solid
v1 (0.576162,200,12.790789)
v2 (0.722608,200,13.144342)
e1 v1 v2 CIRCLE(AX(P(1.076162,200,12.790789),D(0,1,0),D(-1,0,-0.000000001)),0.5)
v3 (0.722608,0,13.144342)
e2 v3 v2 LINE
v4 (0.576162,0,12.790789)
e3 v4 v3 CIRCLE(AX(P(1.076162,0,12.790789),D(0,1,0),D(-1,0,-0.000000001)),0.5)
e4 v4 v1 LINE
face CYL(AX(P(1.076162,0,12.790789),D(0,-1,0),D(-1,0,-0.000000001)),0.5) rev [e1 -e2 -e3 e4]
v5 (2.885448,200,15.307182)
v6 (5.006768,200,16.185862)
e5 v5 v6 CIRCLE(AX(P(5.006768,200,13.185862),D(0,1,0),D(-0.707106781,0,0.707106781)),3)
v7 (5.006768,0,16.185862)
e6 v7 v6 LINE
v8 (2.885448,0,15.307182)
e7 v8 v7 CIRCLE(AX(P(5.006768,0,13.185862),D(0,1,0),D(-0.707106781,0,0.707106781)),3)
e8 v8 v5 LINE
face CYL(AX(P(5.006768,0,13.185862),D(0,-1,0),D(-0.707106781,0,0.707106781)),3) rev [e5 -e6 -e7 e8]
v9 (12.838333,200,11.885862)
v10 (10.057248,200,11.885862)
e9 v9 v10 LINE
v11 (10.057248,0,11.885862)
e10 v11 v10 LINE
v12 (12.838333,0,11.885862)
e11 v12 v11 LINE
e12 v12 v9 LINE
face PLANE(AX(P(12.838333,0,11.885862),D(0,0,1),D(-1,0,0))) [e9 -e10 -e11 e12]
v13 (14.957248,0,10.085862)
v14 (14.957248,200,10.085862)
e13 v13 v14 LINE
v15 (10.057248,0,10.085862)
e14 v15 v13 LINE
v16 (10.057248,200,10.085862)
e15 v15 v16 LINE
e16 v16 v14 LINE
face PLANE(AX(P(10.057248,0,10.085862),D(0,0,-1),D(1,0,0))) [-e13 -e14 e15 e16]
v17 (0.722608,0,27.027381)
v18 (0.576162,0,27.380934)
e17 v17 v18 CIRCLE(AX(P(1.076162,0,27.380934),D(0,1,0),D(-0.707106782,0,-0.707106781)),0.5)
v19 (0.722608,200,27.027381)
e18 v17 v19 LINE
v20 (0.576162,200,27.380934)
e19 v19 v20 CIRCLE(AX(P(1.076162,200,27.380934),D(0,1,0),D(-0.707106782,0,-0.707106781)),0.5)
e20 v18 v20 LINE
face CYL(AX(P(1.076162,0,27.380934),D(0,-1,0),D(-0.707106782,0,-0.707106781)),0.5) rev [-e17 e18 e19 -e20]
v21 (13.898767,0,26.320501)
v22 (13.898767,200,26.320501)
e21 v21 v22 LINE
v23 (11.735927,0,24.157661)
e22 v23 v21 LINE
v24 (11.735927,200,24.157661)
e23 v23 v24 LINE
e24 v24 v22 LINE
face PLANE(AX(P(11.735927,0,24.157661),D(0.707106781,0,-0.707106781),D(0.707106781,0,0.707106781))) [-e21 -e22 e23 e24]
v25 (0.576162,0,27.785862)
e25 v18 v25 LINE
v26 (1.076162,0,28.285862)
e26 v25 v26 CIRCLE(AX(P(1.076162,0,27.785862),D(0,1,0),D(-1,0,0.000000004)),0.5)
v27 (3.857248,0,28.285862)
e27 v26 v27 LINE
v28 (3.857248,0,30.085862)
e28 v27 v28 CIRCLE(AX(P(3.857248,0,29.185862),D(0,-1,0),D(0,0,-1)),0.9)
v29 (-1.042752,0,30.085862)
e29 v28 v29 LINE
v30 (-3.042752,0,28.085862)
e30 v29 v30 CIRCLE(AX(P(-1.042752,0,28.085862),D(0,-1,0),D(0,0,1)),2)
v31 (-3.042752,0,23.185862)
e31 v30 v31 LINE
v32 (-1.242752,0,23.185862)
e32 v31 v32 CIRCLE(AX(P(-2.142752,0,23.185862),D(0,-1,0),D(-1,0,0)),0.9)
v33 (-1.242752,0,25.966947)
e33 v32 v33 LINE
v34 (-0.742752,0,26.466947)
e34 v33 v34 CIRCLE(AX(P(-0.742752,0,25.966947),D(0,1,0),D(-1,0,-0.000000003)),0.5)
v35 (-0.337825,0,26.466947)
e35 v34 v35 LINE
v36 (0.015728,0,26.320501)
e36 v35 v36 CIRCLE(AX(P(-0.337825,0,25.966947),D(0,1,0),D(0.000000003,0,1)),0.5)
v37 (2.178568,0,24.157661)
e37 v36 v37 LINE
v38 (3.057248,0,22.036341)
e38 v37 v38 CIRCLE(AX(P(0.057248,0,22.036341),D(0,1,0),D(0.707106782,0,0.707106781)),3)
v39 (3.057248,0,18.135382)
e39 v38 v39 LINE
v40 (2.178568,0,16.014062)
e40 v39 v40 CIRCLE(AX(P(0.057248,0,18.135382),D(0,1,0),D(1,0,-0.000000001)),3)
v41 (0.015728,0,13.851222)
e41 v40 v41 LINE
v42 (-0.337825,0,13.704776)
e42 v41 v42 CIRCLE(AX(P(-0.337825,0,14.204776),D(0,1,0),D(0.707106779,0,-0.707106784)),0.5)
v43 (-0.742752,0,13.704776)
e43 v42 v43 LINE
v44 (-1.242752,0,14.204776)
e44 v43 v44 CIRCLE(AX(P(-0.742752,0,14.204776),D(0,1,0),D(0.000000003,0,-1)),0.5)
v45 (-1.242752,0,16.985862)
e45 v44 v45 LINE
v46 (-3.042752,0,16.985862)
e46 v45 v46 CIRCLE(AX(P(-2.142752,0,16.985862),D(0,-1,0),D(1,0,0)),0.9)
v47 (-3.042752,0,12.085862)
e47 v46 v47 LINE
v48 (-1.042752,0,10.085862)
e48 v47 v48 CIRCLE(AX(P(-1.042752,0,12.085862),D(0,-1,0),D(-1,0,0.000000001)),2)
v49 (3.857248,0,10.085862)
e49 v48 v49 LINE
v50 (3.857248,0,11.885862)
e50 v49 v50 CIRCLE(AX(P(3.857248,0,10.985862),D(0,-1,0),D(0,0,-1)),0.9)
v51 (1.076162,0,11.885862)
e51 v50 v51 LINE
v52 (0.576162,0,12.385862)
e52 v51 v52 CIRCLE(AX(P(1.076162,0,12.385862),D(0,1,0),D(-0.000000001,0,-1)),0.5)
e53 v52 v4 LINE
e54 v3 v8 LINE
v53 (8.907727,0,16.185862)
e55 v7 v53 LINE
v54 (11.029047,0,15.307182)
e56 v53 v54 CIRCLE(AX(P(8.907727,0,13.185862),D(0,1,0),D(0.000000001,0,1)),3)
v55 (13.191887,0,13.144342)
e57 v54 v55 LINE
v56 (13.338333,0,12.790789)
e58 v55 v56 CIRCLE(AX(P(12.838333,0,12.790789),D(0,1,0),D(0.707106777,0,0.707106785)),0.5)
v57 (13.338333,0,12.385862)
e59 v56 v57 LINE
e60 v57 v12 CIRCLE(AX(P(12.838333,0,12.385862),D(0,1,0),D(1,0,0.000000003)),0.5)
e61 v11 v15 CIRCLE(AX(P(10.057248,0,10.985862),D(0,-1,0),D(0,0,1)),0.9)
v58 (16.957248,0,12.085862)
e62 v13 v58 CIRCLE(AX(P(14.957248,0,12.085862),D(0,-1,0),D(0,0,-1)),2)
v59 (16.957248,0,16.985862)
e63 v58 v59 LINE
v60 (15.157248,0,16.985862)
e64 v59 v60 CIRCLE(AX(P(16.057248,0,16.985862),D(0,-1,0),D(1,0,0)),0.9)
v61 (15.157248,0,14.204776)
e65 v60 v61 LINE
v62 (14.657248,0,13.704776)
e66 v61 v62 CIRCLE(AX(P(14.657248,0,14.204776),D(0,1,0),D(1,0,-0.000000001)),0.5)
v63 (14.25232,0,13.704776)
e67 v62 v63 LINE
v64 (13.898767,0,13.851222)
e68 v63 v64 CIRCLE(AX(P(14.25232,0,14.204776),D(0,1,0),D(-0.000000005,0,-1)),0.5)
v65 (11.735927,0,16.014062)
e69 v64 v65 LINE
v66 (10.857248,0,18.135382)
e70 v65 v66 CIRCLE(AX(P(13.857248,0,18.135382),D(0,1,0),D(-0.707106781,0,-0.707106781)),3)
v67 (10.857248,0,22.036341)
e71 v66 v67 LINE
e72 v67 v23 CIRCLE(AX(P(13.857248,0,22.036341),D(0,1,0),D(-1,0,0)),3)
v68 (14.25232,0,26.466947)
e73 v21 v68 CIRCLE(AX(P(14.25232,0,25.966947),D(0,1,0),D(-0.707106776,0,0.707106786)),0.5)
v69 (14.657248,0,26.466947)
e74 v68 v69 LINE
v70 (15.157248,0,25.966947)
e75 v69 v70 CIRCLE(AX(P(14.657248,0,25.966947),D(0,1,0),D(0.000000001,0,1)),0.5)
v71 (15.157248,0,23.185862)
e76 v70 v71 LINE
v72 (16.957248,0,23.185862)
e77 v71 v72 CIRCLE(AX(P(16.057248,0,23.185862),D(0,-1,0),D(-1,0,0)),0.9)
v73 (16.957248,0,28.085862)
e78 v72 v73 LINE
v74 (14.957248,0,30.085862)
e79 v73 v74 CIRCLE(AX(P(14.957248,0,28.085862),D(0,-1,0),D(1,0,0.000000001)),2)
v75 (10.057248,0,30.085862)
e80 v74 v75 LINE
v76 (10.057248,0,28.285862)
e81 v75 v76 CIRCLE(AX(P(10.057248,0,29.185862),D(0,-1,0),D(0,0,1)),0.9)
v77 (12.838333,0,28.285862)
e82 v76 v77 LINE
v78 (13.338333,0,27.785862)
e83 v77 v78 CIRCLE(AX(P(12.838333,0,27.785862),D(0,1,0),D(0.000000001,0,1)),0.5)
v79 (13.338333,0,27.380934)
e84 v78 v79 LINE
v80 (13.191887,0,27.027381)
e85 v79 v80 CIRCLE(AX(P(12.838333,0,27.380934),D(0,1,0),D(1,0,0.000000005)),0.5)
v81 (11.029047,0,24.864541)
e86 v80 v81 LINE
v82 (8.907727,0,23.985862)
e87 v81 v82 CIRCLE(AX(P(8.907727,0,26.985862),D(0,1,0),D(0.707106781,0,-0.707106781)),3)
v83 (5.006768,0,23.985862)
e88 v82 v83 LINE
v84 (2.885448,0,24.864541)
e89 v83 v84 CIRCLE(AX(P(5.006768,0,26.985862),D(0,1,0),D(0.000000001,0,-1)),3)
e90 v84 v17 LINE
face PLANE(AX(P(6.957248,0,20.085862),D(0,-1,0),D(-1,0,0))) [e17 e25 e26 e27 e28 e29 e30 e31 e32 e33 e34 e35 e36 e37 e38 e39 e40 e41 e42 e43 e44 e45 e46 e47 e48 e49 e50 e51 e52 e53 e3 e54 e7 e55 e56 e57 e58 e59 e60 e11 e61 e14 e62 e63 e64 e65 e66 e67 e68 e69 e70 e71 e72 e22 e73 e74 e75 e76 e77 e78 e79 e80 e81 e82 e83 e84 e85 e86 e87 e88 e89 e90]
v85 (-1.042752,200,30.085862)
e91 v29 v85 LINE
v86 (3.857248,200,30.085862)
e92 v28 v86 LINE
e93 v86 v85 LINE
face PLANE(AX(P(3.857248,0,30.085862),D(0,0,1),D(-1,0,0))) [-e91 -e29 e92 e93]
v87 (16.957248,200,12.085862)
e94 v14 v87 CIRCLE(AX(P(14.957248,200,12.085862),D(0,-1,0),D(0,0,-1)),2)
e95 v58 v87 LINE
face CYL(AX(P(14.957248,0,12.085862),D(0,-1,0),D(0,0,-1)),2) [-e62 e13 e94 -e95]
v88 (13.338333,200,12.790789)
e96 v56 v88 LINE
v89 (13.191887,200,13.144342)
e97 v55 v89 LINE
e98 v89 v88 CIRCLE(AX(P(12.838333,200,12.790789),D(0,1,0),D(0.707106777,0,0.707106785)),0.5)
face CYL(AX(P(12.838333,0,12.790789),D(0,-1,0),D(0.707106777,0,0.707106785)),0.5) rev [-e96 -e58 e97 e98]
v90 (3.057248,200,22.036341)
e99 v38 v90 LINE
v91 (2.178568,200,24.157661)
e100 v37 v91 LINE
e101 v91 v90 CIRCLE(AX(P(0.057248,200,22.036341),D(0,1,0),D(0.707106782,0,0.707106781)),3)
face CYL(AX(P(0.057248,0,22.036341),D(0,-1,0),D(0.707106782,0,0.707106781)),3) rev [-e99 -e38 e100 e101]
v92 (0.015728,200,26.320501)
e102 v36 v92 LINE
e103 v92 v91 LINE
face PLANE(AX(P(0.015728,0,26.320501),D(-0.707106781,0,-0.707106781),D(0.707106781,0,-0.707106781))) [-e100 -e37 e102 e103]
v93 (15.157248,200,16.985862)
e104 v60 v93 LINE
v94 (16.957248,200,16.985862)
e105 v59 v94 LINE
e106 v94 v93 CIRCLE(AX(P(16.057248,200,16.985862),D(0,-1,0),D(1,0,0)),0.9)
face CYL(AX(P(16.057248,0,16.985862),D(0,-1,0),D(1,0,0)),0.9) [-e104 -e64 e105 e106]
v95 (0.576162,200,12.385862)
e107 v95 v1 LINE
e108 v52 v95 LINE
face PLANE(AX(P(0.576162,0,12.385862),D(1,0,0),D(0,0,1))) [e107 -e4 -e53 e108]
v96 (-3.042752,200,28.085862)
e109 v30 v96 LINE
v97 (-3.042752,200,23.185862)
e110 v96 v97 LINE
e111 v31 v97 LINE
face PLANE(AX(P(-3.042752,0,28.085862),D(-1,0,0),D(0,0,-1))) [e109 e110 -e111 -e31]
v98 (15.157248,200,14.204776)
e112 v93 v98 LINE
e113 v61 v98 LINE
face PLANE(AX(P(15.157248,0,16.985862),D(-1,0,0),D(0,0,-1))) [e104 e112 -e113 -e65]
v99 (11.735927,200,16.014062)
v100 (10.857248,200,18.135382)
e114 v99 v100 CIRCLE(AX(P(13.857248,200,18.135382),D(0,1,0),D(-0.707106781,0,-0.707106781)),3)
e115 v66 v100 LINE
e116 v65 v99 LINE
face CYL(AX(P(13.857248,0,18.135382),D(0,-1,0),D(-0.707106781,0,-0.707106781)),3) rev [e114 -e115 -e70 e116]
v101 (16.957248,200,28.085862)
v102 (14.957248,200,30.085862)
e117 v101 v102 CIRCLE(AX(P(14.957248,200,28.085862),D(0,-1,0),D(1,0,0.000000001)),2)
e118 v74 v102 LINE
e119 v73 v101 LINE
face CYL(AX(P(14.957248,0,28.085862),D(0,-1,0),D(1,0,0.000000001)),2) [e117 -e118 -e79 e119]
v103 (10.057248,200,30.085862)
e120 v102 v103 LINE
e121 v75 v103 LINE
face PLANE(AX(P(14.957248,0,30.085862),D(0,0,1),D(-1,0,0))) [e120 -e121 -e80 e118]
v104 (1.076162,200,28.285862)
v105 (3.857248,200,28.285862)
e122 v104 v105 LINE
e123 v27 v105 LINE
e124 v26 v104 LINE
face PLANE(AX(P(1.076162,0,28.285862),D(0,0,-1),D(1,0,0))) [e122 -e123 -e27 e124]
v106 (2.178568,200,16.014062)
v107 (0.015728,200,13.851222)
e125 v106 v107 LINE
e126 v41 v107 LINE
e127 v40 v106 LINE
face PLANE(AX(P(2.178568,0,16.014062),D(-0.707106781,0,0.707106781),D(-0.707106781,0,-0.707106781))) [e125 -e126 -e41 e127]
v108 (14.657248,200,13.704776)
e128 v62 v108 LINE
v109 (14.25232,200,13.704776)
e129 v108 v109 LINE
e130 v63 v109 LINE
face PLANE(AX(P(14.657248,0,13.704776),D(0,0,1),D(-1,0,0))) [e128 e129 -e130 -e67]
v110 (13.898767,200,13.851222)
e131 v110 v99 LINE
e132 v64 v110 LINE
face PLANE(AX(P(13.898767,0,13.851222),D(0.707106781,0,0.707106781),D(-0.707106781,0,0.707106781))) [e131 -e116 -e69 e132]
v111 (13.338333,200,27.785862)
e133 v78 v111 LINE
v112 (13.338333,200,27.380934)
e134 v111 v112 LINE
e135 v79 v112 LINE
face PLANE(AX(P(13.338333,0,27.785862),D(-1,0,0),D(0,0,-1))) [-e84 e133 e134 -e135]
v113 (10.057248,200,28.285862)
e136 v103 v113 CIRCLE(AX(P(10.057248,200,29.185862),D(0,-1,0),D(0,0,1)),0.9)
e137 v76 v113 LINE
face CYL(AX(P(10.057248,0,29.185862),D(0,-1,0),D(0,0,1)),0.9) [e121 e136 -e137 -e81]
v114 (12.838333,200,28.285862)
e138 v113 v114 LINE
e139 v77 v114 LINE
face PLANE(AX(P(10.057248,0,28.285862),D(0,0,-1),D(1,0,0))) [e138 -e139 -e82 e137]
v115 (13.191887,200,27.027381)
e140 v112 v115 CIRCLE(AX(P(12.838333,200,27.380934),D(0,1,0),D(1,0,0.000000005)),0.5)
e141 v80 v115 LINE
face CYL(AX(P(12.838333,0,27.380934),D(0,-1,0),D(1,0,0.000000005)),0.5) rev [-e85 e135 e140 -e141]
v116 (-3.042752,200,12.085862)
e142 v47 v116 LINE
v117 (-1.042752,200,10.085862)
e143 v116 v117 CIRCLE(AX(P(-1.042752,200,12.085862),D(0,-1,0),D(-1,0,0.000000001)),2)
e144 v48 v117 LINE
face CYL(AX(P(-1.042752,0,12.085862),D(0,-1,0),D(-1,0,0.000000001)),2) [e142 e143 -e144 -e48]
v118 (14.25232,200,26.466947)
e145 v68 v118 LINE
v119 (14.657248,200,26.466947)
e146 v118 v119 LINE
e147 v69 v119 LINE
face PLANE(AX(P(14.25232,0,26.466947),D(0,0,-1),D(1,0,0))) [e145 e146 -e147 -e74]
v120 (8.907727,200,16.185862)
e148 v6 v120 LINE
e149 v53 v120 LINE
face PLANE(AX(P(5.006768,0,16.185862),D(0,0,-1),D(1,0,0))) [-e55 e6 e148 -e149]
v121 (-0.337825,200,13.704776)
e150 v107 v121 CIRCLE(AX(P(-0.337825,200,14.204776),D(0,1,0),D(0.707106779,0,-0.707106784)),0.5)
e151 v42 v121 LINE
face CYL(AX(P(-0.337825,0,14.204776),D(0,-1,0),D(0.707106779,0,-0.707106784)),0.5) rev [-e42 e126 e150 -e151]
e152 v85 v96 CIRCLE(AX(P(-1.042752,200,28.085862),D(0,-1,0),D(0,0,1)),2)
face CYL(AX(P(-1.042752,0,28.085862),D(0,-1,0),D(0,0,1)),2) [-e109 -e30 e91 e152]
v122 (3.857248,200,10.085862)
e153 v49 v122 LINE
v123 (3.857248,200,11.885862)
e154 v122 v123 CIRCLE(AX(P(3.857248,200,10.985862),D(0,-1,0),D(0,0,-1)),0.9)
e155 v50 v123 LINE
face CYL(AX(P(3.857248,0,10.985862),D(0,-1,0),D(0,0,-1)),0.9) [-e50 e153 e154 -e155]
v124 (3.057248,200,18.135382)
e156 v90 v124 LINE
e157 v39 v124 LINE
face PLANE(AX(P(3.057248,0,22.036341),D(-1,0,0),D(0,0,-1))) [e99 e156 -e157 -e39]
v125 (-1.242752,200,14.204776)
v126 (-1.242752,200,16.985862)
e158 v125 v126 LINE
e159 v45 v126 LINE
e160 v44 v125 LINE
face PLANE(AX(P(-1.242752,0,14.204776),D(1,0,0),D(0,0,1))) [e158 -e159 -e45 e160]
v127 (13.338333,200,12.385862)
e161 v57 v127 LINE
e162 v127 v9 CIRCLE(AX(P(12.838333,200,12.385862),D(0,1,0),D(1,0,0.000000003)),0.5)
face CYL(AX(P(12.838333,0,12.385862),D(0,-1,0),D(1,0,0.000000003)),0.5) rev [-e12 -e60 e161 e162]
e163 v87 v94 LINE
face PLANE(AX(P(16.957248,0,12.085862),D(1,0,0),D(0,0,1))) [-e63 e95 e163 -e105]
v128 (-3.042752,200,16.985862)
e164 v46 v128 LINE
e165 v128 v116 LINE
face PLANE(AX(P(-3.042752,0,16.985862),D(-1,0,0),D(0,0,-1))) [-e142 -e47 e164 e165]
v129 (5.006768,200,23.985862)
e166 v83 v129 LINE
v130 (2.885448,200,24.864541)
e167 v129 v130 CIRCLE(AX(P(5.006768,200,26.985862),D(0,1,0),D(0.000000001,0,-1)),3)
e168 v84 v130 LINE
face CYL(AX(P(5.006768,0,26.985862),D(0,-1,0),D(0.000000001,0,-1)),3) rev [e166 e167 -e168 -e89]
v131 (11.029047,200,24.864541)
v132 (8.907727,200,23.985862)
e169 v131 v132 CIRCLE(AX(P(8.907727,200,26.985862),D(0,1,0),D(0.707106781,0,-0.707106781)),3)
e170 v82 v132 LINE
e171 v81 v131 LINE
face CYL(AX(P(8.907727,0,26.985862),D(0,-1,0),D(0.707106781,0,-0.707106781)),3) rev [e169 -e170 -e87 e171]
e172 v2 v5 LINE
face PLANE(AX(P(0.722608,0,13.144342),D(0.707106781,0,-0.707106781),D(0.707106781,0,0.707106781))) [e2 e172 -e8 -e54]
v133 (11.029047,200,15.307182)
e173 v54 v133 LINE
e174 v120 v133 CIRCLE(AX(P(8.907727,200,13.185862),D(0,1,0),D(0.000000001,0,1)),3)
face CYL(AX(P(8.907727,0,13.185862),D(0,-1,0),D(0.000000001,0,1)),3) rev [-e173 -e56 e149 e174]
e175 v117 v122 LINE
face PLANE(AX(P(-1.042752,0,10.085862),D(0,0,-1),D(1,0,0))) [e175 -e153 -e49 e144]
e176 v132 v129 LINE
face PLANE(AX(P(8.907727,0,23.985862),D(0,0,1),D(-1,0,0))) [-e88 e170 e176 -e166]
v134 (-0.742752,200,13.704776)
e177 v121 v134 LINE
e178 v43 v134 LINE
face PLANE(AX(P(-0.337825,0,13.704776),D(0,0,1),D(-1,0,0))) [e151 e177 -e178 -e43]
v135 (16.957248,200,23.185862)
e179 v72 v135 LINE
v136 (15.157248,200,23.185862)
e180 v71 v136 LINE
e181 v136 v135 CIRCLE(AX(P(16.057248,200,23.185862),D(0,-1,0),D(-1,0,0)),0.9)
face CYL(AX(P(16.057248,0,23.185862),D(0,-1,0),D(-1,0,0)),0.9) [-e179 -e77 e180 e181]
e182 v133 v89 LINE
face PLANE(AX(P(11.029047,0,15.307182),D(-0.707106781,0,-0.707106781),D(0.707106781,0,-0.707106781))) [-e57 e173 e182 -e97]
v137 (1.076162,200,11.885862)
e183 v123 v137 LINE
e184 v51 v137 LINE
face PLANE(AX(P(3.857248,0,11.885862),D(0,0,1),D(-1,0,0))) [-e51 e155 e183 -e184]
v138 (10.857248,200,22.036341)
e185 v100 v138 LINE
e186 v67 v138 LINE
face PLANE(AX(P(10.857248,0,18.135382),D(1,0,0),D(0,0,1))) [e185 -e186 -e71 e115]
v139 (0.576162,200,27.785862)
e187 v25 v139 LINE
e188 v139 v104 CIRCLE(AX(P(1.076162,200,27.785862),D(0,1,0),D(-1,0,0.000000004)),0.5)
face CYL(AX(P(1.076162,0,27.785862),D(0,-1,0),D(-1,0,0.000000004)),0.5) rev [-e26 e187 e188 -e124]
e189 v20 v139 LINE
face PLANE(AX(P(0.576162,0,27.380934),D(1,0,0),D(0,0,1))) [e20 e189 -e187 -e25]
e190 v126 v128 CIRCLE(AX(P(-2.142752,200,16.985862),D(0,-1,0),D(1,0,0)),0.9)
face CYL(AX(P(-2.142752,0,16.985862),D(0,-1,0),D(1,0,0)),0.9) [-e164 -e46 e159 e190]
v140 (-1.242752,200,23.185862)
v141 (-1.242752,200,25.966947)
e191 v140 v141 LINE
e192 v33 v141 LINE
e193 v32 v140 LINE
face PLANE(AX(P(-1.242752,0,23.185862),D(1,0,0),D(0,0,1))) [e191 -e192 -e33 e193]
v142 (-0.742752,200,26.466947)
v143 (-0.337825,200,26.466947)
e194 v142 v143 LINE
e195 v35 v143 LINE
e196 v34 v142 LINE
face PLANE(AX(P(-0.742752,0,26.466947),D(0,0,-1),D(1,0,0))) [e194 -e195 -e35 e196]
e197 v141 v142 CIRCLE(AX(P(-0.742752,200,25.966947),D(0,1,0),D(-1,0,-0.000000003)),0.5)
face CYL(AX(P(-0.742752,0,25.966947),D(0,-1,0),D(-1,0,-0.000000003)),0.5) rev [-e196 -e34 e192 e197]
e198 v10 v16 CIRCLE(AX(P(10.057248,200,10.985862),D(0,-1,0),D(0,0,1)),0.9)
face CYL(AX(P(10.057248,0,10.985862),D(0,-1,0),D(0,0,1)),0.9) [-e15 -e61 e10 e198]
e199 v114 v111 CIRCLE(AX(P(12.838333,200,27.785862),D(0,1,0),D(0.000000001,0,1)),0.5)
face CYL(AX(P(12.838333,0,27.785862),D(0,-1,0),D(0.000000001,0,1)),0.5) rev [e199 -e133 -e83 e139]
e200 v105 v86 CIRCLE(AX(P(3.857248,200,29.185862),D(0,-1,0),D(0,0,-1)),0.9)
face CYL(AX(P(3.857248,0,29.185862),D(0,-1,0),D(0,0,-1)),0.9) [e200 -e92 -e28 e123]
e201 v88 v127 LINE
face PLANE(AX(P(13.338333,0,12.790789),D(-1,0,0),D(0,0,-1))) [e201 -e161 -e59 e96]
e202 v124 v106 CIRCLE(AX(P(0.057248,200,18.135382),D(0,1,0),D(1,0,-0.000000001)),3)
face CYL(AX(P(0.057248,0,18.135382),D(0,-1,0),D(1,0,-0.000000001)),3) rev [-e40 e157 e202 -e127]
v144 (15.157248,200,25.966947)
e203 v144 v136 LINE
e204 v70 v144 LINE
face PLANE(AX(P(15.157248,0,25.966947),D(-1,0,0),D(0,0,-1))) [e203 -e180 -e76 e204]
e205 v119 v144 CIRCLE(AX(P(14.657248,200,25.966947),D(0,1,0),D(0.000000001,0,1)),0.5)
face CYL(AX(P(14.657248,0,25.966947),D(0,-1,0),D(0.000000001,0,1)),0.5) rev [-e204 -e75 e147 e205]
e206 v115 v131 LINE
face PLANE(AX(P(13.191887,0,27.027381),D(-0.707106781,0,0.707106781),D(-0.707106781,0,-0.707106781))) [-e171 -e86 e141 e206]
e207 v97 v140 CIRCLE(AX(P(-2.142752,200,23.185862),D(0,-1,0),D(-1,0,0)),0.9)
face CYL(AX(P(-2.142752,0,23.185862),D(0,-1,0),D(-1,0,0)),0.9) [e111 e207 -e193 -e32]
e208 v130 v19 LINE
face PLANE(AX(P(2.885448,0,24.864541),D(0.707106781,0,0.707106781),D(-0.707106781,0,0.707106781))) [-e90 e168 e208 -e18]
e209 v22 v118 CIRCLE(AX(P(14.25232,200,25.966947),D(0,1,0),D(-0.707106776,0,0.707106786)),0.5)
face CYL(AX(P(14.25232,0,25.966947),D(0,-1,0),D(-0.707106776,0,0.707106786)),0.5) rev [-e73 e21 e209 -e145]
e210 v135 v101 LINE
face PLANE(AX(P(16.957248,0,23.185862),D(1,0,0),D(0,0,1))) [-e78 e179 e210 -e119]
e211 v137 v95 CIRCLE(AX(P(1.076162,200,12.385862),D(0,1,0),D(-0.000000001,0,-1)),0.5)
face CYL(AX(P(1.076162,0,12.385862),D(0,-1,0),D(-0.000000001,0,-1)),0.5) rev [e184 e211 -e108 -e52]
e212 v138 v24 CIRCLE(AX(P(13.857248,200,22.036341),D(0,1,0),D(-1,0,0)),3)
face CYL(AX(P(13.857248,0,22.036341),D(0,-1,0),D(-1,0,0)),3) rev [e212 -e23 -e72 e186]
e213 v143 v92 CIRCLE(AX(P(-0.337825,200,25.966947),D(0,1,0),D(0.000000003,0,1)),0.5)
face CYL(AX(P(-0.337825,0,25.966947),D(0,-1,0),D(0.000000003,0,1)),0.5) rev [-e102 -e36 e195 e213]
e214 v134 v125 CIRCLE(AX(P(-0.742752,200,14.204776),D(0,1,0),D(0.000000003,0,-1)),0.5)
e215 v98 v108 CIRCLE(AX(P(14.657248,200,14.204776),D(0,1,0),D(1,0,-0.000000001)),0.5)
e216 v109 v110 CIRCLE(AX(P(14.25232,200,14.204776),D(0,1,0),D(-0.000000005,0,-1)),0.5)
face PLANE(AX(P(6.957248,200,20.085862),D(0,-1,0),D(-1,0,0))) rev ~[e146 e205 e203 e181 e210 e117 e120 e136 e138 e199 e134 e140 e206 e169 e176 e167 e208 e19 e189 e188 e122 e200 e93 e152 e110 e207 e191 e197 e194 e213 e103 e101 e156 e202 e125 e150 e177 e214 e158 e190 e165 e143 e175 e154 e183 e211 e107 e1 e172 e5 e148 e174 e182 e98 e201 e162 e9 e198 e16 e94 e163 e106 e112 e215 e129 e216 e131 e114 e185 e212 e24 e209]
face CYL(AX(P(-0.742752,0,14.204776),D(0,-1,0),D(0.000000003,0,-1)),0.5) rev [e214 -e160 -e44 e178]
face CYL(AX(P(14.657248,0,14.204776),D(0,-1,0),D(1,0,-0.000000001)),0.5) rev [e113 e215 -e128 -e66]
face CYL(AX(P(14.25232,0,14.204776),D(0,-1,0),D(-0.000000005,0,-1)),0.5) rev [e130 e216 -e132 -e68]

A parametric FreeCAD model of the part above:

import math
import FreeCAD as App
import Part
import Sketcher
from FreeCAD import Vector
Q = App.Units.Quantity

doc = App.newDocument("Part")
body = doc.addObject("PartDesign::Body", "Body")

sketch1 = body.newObject("Sketcher::SketchObject", "Sketch")
sketch1.AttachmentSupport = (doc.getObject("XZ_Plane"), [""])
sketch1.MapMode = "FlatFace"
sketch1.addGeometry(Part.LineSegment(Vector(3.857248, 10.085862, 0), Vector(-1.042752, 10.085862, 0)), False)
sketch1.addGeometry(Part.ArcOfCircle(Part.Circle(Vector(-1.042752, 12.085862, 0), Vector(0, 0, 1), 2), math.radians(180), math.radians(270)), False)
sketch1.addGeometry(Part.LineSegment(Vector(-3.042752, 12.085862, 0), Vector(-3.042752, 16.985862, 0)), False)
sketch1.addGeometry(Part.ArcOfCircle(Part.Circle(Vector(-2.142752, 16.985862, 0), Vector(0, 0, 1), 0.9), math.radians(0), math.radians(180)), False)
sketch1.addGeometry(Part.LineSegment(Vector(-1.242752, 16.985862, 0), Vector(-1.242752, 14.204776, 0)), False)
sketch1.addGeometry(Part.ArcOfCircle(Part.Circle(Vector(-0.742752, 14.204776, 0), Vector(0, 0, 1), 0.5), math.radians(180), math.radians(270)), False)
sketch1.addGeometry(Part.LineSegment(Vector(-0.742752, 13.704776, 0), Vector(-0.337825, 13.704776, 0)), False)
sketch1.addGeometry(Part.ArcOfCircle(Part.Circle(Vector(-0.337825, 14.204776, 0), Vector(0, 0, 1), 0.5), math.radians(-90), math.radians(-45)), False)
sketch1.addGeometry(Part.LineSegment(Vector(0.015728, 13.851222, 0), Vector(2.178568, 16.014062, 0)), False)
sketch1.addGeometry(Part.ArcOfCircle(Part.Circle(Vector(0.057248, 18.135382, 0), Vector(0, 0, 1), 3), math.radians(-45), math.radians(0)), False)
sketch1.addGeometry(Part.LineSegment(Vector(3.057248, 18.135382, 0), Vector(3.057248, 22.036341, 0)), False)
sketch1.addGeometry(Part.ArcOfCircle(Part.Circle(Vector(0.057248, 22.036341, 0), Vector(0, 0, 1), 3), math.radians(0), math.radians(45)), False)
sketch1.addGeometry(Part.LineSegment(Vector(2.178568, 24.157661, 0), Vector(0.015728, 26.320501, 0)), False)
sketch1.addGeometry(Part.ArcOfCircle(Part.Circle(Vector(-0.337825, 25.966947, 0), Vector(0, 0, 1), 0.5), math.radians(45), math.radians(90)), False)
sketch1.addGeometry(Part.LineSegment(Vector(-0.337825, 26.466947, 0), Vector(-0.742752, 26.466947, 0)), False)
sketch1.addGeometry(Part.ArcOfCircle(Part.Circle(Vector(-0.742752, 25.966947, 0), Vector(0, 0, 1), 0.5), math.radians(90), math.radians(180)), False)
sketch1.addGeometry(Part.LineSegment(Vector(-1.242752, 25.966947, 0), Vector(-1.242752, 23.185862, 0)), False)
sketch1.addGeometry(Part.ArcOfCircle(Part.Circle(Vector(-2.142752, 23.185862, 0), Vector(0, 0, 1), 0.9), math.radians(180), math.radians(360)), False)
sketch1.addGeometry(Part.LineSegment(Vector(-3.042752, 23.185862, 0), Vector(-3.042752, 28.085862, 0)), False)
sketch1.addGeometry(Part.ArcOfCircle(Part.Circle(Vector(-1.042752, 28.085862, 0), Vector(0, 0, 1), 2), math.radians(90), math.radians(180)), False)
sketch1.addGeometry(Part.LineSegment(Vector(-1.042752, 30.085862, 0), Vector(3.857248, 30.085862, 0)), False)
sketch1.addGeometry(Part.ArcOfCircle(Part.Circle(Vector(3.857248, 29.185862, 0), Vector(0, 0, 1), 0.9), math.radians(-90), math.radians(90)), False)
sketch1.addGeometry(Part.LineSegment(Vector(3.857248, 28.285862, 0), Vector(1.076162, 28.285862, 0)), False)
sketch1.addGeometry(Part.ArcOfCircle(Part.Circle(Vector(1.076162, 27.785862, 0), Vector(0, 0, 1), 0.5), math.radians(90), math.radians(180)), False)
sketch1.addGeometry(Part.LineSegment(Vector(0.576162, 27.785862, 0), Vector(0.576162, 27.380934, 0)), False)
sketch1.addGeometry(Part.ArcOfCircle(Part.Circle(Vector(1.076162, 27.380934, 0), Vector(0, 0, 1), 0.5), math.radians(-180), math.radians(-135)), False)
sketch1.addGeometry(Part.LineSegment(Vector(0.722608, 27.027381, 0), Vector(2.885448, 24.864541, 0)), False)
sketch1.addGeometry(Part.ArcOfCircle(Part.Circle(Vector(5.006768, 26.985862, 0), Vector(0, 0, 1), 3), math.radians(-135), math.radians(-90)), False)
sketch1.addGeometry(Part.LineSegment(Vector(5.006768, 23.985862, 0), Vector(8.907727, 23.985862, 0)), False)
sketch1.addGeometry(Part.ArcOfCircle(Part.Circle(Vector(8.907727, 26.985862, 0), Vector(0, 0, 1), 3), math.radians(-90), math.radians(-45)), False)
sketch1.addGeometry(Part.LineSegment(Vector(11.029047, 24.864541, 0), Vector(13.191887, 27.027381, 0)), False)
sketch1.addGeometry(Part.ArcOfCircle(Part.Circle(Vector(12.838333, 27.380934, 0), Vector(0, 0, 1), 0.5), math.radians(-45), math.radians(0)), False)
sketch1.addGeometry(Part.LineSegment(Vector(13.338333, 27.380934, 0), Vector(13.338333, 27.785862, 0)), False)
sketch1.addGeometry(Part.ArcOfCircle(Part.Circle(Vector(12.838333, 27.785862, 0), Vector(0, 0, 1), 0.5), math.radians(0), math.radians(90)), False)
sketch1.addGeometry(Part.LineSegment(Vector(12.838333, 28.285862, 0), Vector(10.057248, 28.285862, 0)), False)
sketch1.addGeometry(Part.ArcOfCircle(Part.Circle(Vector(10.057248, 29.185862, 0), Vector(0, 0, 1), 0.9), math.radians(90), math.radians(270)), False)
sketch1.addGeometry(Part.LineSegment(Vector(10.057248, 30.085862, 0), Vector(14.957248, 30.085862, 0)), False)
sketch1.addGeometry(Part.ArcOfCircle(Part.Circle(Vector(14.957248, 28.085862, 0), Vector(0, 0, 1), 2), math.radians(0), math.radians(90)), False)
sketch1.addGeometry(Part.LineSegment(Vector(16.957248, 28.085862, 0), Vector(16.957248, 23.185862, 0)), False)
sketch1.addGeometry(Part.ArcOfCircle(Part.Circle(Vector(16.057248, 23.185862, 0), Vector(0, 0, 1), 0.9), math.radians(180), math.radians(360)), False)
sketch1.addGeometry(Part.LineSegment(Vector(15.157248, 23.185862, 0), Vector(15.157248, 25.966947, 0)), False)
sketch1.addGeometry(Part.ArcOfCircle(Part.Circle(Vector(14.657248, 25.966947, 0), Vector(0, 0, 1), 0.5), math.radians(0), math.radians(90)), False)
sketch1.addGeometry(Part.LineSegment(Vector(14.657248, 26.466947, 0), Vector(14.25232, 26.466947, 0)), False)
sketch1.addGeometry(Part.ArcOfCircle(Part.Circle(Vector(14.25232, 25.966947, 0), Vector(0, 0, 1), 0.5), math.radians(90), math.radians(135)), False)
sketch1.addGeometry(Part.LineSegment(Vector(13.898767, 26.320501, 0), Vector(11.735927, 24.157661, 0)), False)
sketch1.addGeometry(Part.ArcOfCircle(Part.Circle(Vector(13.857248, 22.036341, 0), Vector(0, 0, 1), 3), math.radians(135), math.radians(180)), False)
sketch1.addGeometry(Part.LineSegment(Vector(10.857248, 22.036341, 0), Vector(10.857248, 18.135382, 0)), False)
sketch1.addGeometry(Part.ArcOfCircle(Part.Circle(Vector(13.857248, 18.135382, 0), Vector(0, 0, 1), 3), math.radians(180), math.radians(225)), False)
sketch1.addGeometry(Part.LineSegment(Vector(11.735927, 16.014062, 0), Vector(13.898767, 13.851222, 0)), False)
sketch1.addGeometry(Part.ArcOfCircle(Part.Circle(Vector(14.25232, 14.204776, 0), Vector(0, 0, 1), 0.5), math.radians(-135), math.radians(-90)), False)
sketch1.addGeometry(Part.LineSegment(Vector(14.25232, 13.704776, 0), Vector(14.657248, 13.704776, 0)), False)
sketch1.addGeometry(Part.ArcOfCircle(Part.Circle(Vector(14.657248, 14.204776, 0), Vector(0, 0, 1), 0.5), math.radians(-90), math.radians(0)), False)
sketch1.addGeometry(Part.LineSegment(Vector(15.157248, 14.204776, 0), Vector(15.157248, 16.985862, 0)), False)
sketch1.addGeometry(Part.ArcOfCircle(Part.Circle(Vector(16.057248, 16.985862, 0), Vector(0, 0, 1), 0.9), math.radians(0), math.radians(180)), False)
sketch1.addGeometry(Part.LineSegment(Vector(16.957248, 16.985862, 0), Vector(16.957248, 12.085862, 0)), False)
sketch1.addGeometry(Part.ArcOfCircle(Part.Circle(Vector(14.957248, 12.085862, 0), Vector(0, 0, 1), 2), math.radians(-90), math.radians(0)), False)
sketch1.addGeometry(Part.LineSegment(Vector(14.957248, 10.085862, 0), Vector(10.057248, 10.085862, 0)), False)
sketch1.addGeometry(Part.ArcOfCircle(Part.Circle(Vector(10.057248, 10.985862, 0), Vector(0, 0, 1), 0.9), math.radians(90), math.radians(270)), False)
sketch1.addGeometry(Part.LineSegment(Vector(10.057248, 11.885862, 0), Vector(12.838333, 11.885862, 0)), False)
sketch1.addGeometry(Part.ArcOfCircle(Part.Circle(Vector(12.838333, 12.385862, 0), Vector(0, 0, 1), 0.5), math.radians(-90), math.radians(0)), False)
sketch1.addGeometry(Part.LineSegment(Vector(13.338333, 12.385862, 0), Vector(13.338333, 12.790789, 0)), False)
sketch1.addGeometry(Part.ArcOfCircle(Part.Circle(Vector(12.838333, 12.790789, 0), Vector(0, 0, 1), 0.5), math.radians(0), math.radians(45)), False)
sketch1.addGeometry(Part.LineSegment(Vector(13.191887, 13.144342, 0), Vector(11.029047, 15.307182, 0)), False)
sketch1.addGeometry(Part.ArcOfCircle(Part.Circle(Vector(8.907727, 13.185862, 0), Vector(0, 0, 1), 3), math.radians(45), math.radians(90)), False)
sketch1.addGeometry(Part.LineSegment(Vector(8.907727, 16.185862, 0), Vector(5.006768, 16.185862, 0)), False)
sketch1.addGeometry(Part.ArcOfCircle(Part.Circle(Vector(5.006768, 13.185862, 0), Vector(0, 0, 1), 3), math.radians(90), math.radians(135)), False)
sketch1.addGeometry(Part.LineSegment(Vector(2.885448, 15.307182, 0), Vector(0.722608, 13.144342, 0)), False)
sketch1.addGeometry(Part.ArcOfCircle(Part.Circle(Vector(1.076162, 12.790789, 0), Vector(0, 0, 1), 0.5), math.radians(135), math.radians(180)), False)
sketch1.addGeometry(Part.LineSegment(Vector(0.576162, 12.790789, 0), Vector(0.576162, 12.385862, 0)), False)
sketch1.addGeometry(Part.ArcOfCircle(Part.Circle(Vector(1.076162, 12.385862, 0), Vector(0, 0, 1), 0.5), math.radians(180), math.radians(270)), False)
sketch1.addGeometry(Part.LineSegment(Vector(1.076162, 11.885862, 0), Vector(3.857248, 11.885862, 0)), False)
sketch1.addGeometry(Part.ArcOfCircle(Part.Circle(Vector(3.857248, 10.985862, 0), Vector(0, 0, 1), 0.9), math.radians(-90), math.radians(90)), False)
sketch1.addConstraint(Sketcher.Constraint("Tangent", 0, 2, 1, 2))
sketch1.addConstraint(Sketcher.Constraint("Tangent", 1, 1, 2, 1))
sketch1.addConstraint(Sketcher.Constraint("Tangent", 2, 2, 3, 2))
sketch1.addConstraint(Sketcher.Constraint("Tangent", 3, 1, 4, 1))
sketch1.addConstraint(Sketcher.Constraint("Tangent", 4, 2, 5, 1))
sketch1.addConstraint(Sketcher.Constraint("Tangent", 5, 2, 6, 1))
sketch1.addConstraint(Sketcher.Constraint("Tangent", 6, 2, 7, 1))
sketch1.addConstraint(Sketcher.Constraint("Tangent", 7, 2, 8, 1))
sketch1.addConstraint(Sketcher.Constraint("Tangent", 8, 2, 9, 1))
sketch1.addConstraint(Sketcher.Constraint("Tangent", 9, 2, 10, 1))
sketch1.addConstraint(Sketcher.Constraint("Tangent", 10, 2, 11, 1))
sketch1.addConstraint(Sketcher.Constraint("Tangent", 11, 2, 12, 1))
sketch1.addConstraint(Sketcher.Constraint("Tangent", 12, 2, 13, 1))
sketch1.addConstraint(Sketcher.Constraint("Tangent", 13, 2, 14, 1))
sketch1.addConstraint(Sketcher.Constraint("Tangent", 14, 2, 15, 1))
sketch1.addConstraint(Sketcher.Constraint("Tangent", 15, 2, 16, 1))
sketch1.addConstraint(Sketcher.Constraint("Tangent", 16, 2, 17, 2))
sketch1.addConstraint(Sketcher.Constraint("Tangent", 17, 1, 18, 1))
sketch1.addConstraint(Sketcher.Constraint("Tangent", 18, 2, 19, 2))
sketch1.addConstraint(Sketcher.Constraint("Tangent", 19, 1, 20, 1))
sketch1.addConstraint(Sketcher.Constraint("Tangent", 20, 2, 21, 2))
sketch1.addConstraint(Sketcher.Constraint("Tangent", 21, 1, 22, 1))
sketch1.addConstraint(Sketcher.Constraint("Tangent", 22, 2, 23, 1))
sketch1.addConstraint(Sketcher.Constraint("Tangent", 23, 2, 24, 1))
sketch1.addConstraint(Sketcher.Constraint("Tangent", 24, 2, 25, 1))
sketch1.addConstraint(Sketcher.Constraint("Tangent", 25, 2, 26, 1))
sketch1.addConstraint(Sketcher.Constraint("Tangent", 26, 2, 27, 1))
sketch1.addConstraint(Sketcher.Constraint("Tangent", 27, 2, 28, 1))
sketch1.addConstraint(Sketcher.Constraint("Tangent", 28, 2, 29, 1))
sketch1.addConstraint(Sketcher.Constraint("Tangent", 29, 2, 30, 1))
sketch1.addConstraint(Sketcher.Constraint("Tangent", 30, 2, 31, 1))
sketch1.addConstraint(Sketcher.Constraint("Tangent", 31, 2, 32, 1))
sketch1.addConstraint(Sketcher.Constraint("Tangent", 32, 2, 33, 1))
sketch1.addConstraint(Sketcher.Constraint("Tangent", 33, 2, 34, 1))
sketch1.addConstraint(Sketcher.Constraint("Tangent", 34, 2, 35, 2))
sketch1.addConstraint(Sketcher.Constraint("Tangent", 35, 1, 36, 1))
sketch1.addConstraint(Sketcher.Constraint("Tangent", 36, 2, 37, 2))
sketch1.addConstraint(Sketcher.Constraint("Tangent", 37, 1, 38, 1))
sketch1.addConstraint(Sketcher.Constraint("Tangent", 38, 2, 39, 2))
sketch1.addConstraint(Sketcher.Constraint("Tangent", 39, 1, 40, 1))
sketch1.addConstraint(Sketcher.Constraint("Tangent", 40, 2, 41, 1))
sketch1.addConstraint(Sketcher.Constraint("Tangent", 41, 2, 42, 1))
sketch1.addConstraint(Sketcher.Constraint("Tangent", 42, 2, 43, 1))
sketch1.addConstraint(Sketcher.Constraint("Tangent", 43, 2, 44, 1))
sketch1.addConstraint(Sketcher.Constraint("Tangent", 44, 2, 45, 1))
sketch1.addConstraint(Sketcher.Constraint("Tangent", 45, 2, 46, 1))
sketch1.addConstraint(Sketcher.Constraint("Tangent", 46, 2, 47, 1))
sketch1.addConstraint(Sketcher.Constraint("Tangent", 47, 2, 48, 1))
sketch1.addConstraint(Sketcher.Constraint("Tangent", 48, 2, 49, 1))
sketch1.addConstraint(Sketcher.Constraint("Tangent", 49, 2, 50, 1))
sketch1.addConstraint(Sketcher.Constraint("Tangent", 50, 2, 51, 1))
sketch1.addConstraint(Sketcher.Constraint("Tangent", 51, 2, 52, 1))
sketch1.addConstraint(Sketcher.Constraint("Tangent", 52, 2, 53, 2))
sketch1.addConstraint(Sketcher.Constraint("Tangent", 53, 1, 54, 1))
sketch1.addConstraint(Sketcher.Constraint("Tangent", 54, 2, 55, 2))
sketch1.addConstraint(Sketcher.Constraint("Tangent", 55, 1, 56, 1))
sketch1.addConstraint(Sketcher.Constraint("Tangent", 56, 2, 57, 2))
sketch1.addConstraint(Sketcher.Constraint("Tangent", 57, 1, 58, 1))
sketch1.addConstraint(Sketcher.Constraint("Tangent", 58, 2, 59, 1))
sketch1.addConstraint(Sketcher.Constraint("Tangent", 59, 2, 60, 1))
sketch1.addConstraint(Sketcher.Constraint("Tangent", 60, 2, 61, 1))
sketch1.addConstraint(Sketcher.Constraint("Tangent", 61, 2, 62, 1))
sketch1.addConstraint(Sketcher.Constraint("Tangent", 62, 2, 63, 1))
sketch1.addConstraint(Sketcher.Constraint("Tangent", 63, 2, 64, 1))
sketch1.addConstraint(Sketcher.Constraint("Tangent", 64, 2, 65, 1))
sketch1.addConstraint(Sketcher.Constraint("Tangent", 65, 2, 66, 1))
sketch1.addConstraint(Sketcher.Constraint("Tangent", 66, 2, 67, 1))
sketch1.addConstraint(Sketcher.Constraint("Tangent", 67, 2, 68, 1))
sketch1.addConstraint(Sketcher.Constraint("Tangent", 68, 2, 69, 1))
sketch1.addConstraint(Sketcher.Constraint("Tangent", 69, 2, 70, 1))
sketch1.addConstraint(Sketcher.Constraint("Tangent", 70, 2, 71, 2))
sketch1.addConstraint(Sketcher.Constraint("Tangent", 71, 1, 0, 1))
sketch1.addConstraint(Sketcher.Constraint("Horizontal", 0))
sketch1.addConstraint(Sketcher.Constraint("Vertical", 2))
sketch1.addConstraint(Sketcher.Constraint("Vertical", 4))
sketch1.addConstraint(Sketcher.Constraint("Horizontal", 6))
sketch1.addConstraint(Sketcher.Constraint("Vertical", 10))
sketch1.addConstraint(Sketcher.Constraint("Horizontal", 14))
sketch1.addConstraint(Sketcher.Constraint("Vertical", 16))
sketch1.addConstraint(Sketcher.Constraint("Vertical", 18))
sketch1.addConstraint(Sketcher.Constraint("Horizontal", 20))
sketch1.addConstraint(Sketcher.Constraint("Horizontal", 22))
sketch1.addConstraint(Sketcher.Constraint("Vertical", 24))
sketch1.addConstraint(Sketcher.Constraint("Horizontal", 28))
sketch1.addConstraint(Sketcher.Constraint("Vertical", 32))
sketch1.addConstraint(Sketcher.Constraint("Horizontal", 34))
sketch1.addConstraint(Sketcher.Constraint("Horizontal", 36))
sketch1.addConstraint(Sketcher.Constraint("Vertical", 38))
sketch1.addConstraint(Sketcher.Constraint("Vertical", 40))
sketch1.addConstraint(Sketcher.Constraint("Horizontal", 42))
sketch1.addConstraint(Sketcher.Constraint("Vertical", 46))
sketch1.addConstraint(Sketcher.Constraint("Horizontal", 50))
sketch1.addConstraint(Sketcher.Constraint("Vertical", 52))
sketch1.addConstraint(Sketcher.Constraint("Vertical", 54))
sketch1.addConstraint(Sketcher.Constraint("Horizontal", 56))
sketch1.addConstraint(Sketcher.Constraint("Horizontal", 58))
sketch1.addConstraint(Sketcher.Constraint("Vertical", 60))
sketch1.addConstraint(Sketcher.Constraint("Horizontal", 64))
sketch1.addConstraint(Sketcher.Constraint("Vertical", 68))
sketch1.addConstraint(Sketcher.Constraint("Horizontal", 70))
sketch1.addConstraint(Sketcher.Constraint("Equal", 5, 7))
sketch1.addConstraint(Sketcher.Constraint("Equal", 9, 11))
sketch1.addConstraint(Sketcher.Constraint("Equal", 7, 13))
sketch1.addConstraint(Sketcher.Constraint("Equal", 13, 15))
sketch1.addConstraint(Sketcher.Constraint("Equal", 3, 17))
sketch1.addConstraint(Sketcher.Constraint("Equal", 1, 19))
sketch1.addConstraint(Sketcher.Constraint("Equal", 17, 21))
sketch1.addConstraint(Sketcher.Constraint("Equal", 15, 23))
sketch1.addConstraint(Sketcher.Constraint("Equal", 23, 25))
sketch1.addConstraint(Sketcher.Constraint("Equal", 11, 27))
sketch1.addConstraint(Sketcher.Constraint("Equal", 27, 29))
sketch1.addConstraint(Sketcher.Constraint("Equal", 25, 31))
sketch1.addConstraint(Sketcher.Constraint("Equal", 31, 33))
sketch1.addConstraint(Sketcher.Constraint("Equal", 21, 35))
sketch1.addConstraint(Sketcher.Constraint("Equal", 19, 37))
sketch1.addConstraint(Sketcher.Constraint("Equal", 35, 39))
sketch1.addConstraint(Sketcher.Constraint("Equal", 33, 41))
sketch1.addConstraint(Sketcher.Constraint("Equal", 41, 43))
sketch1.addConstraint(Sketcher.Constraint("Equal", 29, 45))
sketch1.addConstraint(Sketcher.Constraint("Equal", 45, 47))
sketch1.addConstraint(Sketcher.Constraint("Equal", 43, 49))
sketch1.addConstraint(Sketcher.Constraint("Equal", 49, 51))
sketch1.addConstraint(Sketcher.Constraint("Equal", 39, 53))
sketch1.addConstraint(Sketcher.Constraint("Equal", 37, 55))
sketch1.addConstraint(Sketcher.Constraint("Equal", 53, 57))
sketch1.addConstraint(Sketcher.Constraint("Equal", 51, 59))
sketch1.addConstraint(Sketcher.Constraint("Equal", 59, 61))
sketch1.addConstraint(Sketcher.Constraint("Equal", 47, 63))
sketch1.addConstraint(Sketcher.Constraint("Equal", 63, 65))
sketch1.addConstraint(Sketcher.Constraint("Equal", 61, 67))
sketch1.addConstraint(Sketcher.Constraint("Equal", 67, 69))
sketch1.addConstraint(Sketcher.Constraint("Equal", 57, 71))
sketch1.addConstraint(Sketcher.Constraint("Perpendicular", 8, 12))
sketch1.addConstraint(Sketcher.Constraint("Parallel", 12, 26))
sketch1.addConstraint(Sketcher.Constraint("Perpendicular", 26, 30))
sketch1.addConstraint(Sketcher.Constraint("Parallel", 30, 44))
sketch1.addConstraint(Sketcher.Constraint("Perpendicular", 44, 48))
sketch1.addConstraint(Sketcher.Constraint("Parallel", 48, 62))
sketch1.addConstraint(Sketcher.Constraint("Perpendicular", 62, 66))
sketch1.addConstraint(Sketcher.Constraint("Horizontal", 25, 3, 31, 3))
sketch1.addConstraint(Sketcher.Constraint("Horizontal", 23, 3, 33, 3))
sketch1.addConstraint(Sketcher.Constraint("Horizontal", 17, 3, 39, 3))
sketch1.addConstraint(Sketcher.Constraint("Horizontal", 15, 3, 41, 3))
sketch1.addConstraint(Sketcher.Constraint("Horizontal", 11, 3, 45, 3))
sketch1.addConstraint(Sketcher.Constraint("Horizontal", 9, 3, 47, 3))
sketch1.addConstraint(Sketcher.Constraint("Horizontal", 7, 3, 49, 3))
sketch1.addConstraint(Sketcher.Constraint("Horizontal", 3, 3, 53, 3))
sketch1.addConstraint(Sketcher.Constraint("Horizontal", 1, 3, 55, 3))
sketch1.addConstraint(Sketcher.Constraint("Horizontal", 61, 3, 67, 3))
sketch1.addConstraint(Sketcher.Constraint("Horizontal", 26, 2, 29, 2))
sketch1.addConstraint(Sketcher.Constraint("Vertical", 7, 3, 13, 3))
sketch1.addConstraint(Sketcher.Constraint("Vertical", 5, 3, 15, 3))
sketch1.addConstraint(Sketcher.Constraint("Vertical", 41, 3, 51, 3))
sketch1.addConstraint(Sketcher.Constraint("Vertical", 35, 3, 57, 3))
sketch1.addConstraint(Sketcher.Constraint("Vertical", 33, 3, 59, 3))
sketch1.addConstraint(Sketcher.Constraint("Vertical", 29, 3, 63, 3))
sketch1.addConstraint(Sketcher.Constraint("Vertical", 27, 3, 65, 3))
sketch1.addConstraint(Sketcher.Constraint("Vertical", 21, 3, 71, 3))
sketch1.addConstraint(Sketcher.Constraint("Equal", 22, 34))
sketch1.addConstraint(Sketcher.Constraint("Equal", 20, 36))
sketch1.addConstraint(Sketcher.Constraint("Equal", 14, 42))
sketch1.addConstraint(Sketcher.Constraint("Equal", 56, 2))
sketch1.addConstraint(Sketcher.Constraint("Equal", 70, 4))
sketch1.addConstraint(Sketcher.Constraint("Equal", 64, 10))
sketch1.addConstraint(Sketcher.Constraint("Equal", 4, 16))
sketch1.addConstraint(Sketcher.Constraint("Equal", 2, 18))
sketch1.addConstraint(Sketcher.Constraint("Equal", 50, 24))
sketch1.addConstraint(Sketcher.Constraint("Equal", 32, 60))
sketch1.addConstraint(Sketcher.Constraint("Equal", 12, 26))
sketch1.addConstraint(Sketcher.Constraint("Radius", 1, Q("2 mm")))
sketch1.addConstraint(Sketcher.Constraint("Radius", 9, Q("3 mm")))
sketch1.addConstraint(Sketcher.Constraint("Radius", 3, Q("0.9 mm")))
sketch1.addConstraint(Sketcher.Constraint("Radius", 5, Q("0.5 mm")))
sketch1.addConstraint(Sketcher.Constraint("DistanceX", 0, 2, 0, 1, Q("4.9 mm")))
sketch1.addConstraint(Sketcher.Constraint("DistanceX", 28, 1, 28, 2, Q("3.900958 mm")))
sketch1.addConstraint(Sketcher.Constraint("DistanceY", -1, 1, 12, 2, Q("26.320501 mm")))
sketch1.addConstraint(Sketcher.Constraint("DistanceX", 6, 1, 6, 2, Q("0.404927 mm")))
sketch1.addConstraint(Sketcher.Constraint("DistanceX", 22, 2, 22, 1, Q("2.781086 mm")))
sketch1.addConstraint(Sketcher.Constraint("DistanceY", -1, 1, 1, 3, Q("12.085862 mm")))
sketch1.addConstraint(Sketcher.Constraint("DistanceX", -1, 1, 23, 3, Q("1.076162 mm")))
pad1 = body.newObject("PartDesign::Pad", "Pad")
pad1.Profile = sketch1
pad1.Length = 200
pad1.Reversed = True

doc.recompute()
